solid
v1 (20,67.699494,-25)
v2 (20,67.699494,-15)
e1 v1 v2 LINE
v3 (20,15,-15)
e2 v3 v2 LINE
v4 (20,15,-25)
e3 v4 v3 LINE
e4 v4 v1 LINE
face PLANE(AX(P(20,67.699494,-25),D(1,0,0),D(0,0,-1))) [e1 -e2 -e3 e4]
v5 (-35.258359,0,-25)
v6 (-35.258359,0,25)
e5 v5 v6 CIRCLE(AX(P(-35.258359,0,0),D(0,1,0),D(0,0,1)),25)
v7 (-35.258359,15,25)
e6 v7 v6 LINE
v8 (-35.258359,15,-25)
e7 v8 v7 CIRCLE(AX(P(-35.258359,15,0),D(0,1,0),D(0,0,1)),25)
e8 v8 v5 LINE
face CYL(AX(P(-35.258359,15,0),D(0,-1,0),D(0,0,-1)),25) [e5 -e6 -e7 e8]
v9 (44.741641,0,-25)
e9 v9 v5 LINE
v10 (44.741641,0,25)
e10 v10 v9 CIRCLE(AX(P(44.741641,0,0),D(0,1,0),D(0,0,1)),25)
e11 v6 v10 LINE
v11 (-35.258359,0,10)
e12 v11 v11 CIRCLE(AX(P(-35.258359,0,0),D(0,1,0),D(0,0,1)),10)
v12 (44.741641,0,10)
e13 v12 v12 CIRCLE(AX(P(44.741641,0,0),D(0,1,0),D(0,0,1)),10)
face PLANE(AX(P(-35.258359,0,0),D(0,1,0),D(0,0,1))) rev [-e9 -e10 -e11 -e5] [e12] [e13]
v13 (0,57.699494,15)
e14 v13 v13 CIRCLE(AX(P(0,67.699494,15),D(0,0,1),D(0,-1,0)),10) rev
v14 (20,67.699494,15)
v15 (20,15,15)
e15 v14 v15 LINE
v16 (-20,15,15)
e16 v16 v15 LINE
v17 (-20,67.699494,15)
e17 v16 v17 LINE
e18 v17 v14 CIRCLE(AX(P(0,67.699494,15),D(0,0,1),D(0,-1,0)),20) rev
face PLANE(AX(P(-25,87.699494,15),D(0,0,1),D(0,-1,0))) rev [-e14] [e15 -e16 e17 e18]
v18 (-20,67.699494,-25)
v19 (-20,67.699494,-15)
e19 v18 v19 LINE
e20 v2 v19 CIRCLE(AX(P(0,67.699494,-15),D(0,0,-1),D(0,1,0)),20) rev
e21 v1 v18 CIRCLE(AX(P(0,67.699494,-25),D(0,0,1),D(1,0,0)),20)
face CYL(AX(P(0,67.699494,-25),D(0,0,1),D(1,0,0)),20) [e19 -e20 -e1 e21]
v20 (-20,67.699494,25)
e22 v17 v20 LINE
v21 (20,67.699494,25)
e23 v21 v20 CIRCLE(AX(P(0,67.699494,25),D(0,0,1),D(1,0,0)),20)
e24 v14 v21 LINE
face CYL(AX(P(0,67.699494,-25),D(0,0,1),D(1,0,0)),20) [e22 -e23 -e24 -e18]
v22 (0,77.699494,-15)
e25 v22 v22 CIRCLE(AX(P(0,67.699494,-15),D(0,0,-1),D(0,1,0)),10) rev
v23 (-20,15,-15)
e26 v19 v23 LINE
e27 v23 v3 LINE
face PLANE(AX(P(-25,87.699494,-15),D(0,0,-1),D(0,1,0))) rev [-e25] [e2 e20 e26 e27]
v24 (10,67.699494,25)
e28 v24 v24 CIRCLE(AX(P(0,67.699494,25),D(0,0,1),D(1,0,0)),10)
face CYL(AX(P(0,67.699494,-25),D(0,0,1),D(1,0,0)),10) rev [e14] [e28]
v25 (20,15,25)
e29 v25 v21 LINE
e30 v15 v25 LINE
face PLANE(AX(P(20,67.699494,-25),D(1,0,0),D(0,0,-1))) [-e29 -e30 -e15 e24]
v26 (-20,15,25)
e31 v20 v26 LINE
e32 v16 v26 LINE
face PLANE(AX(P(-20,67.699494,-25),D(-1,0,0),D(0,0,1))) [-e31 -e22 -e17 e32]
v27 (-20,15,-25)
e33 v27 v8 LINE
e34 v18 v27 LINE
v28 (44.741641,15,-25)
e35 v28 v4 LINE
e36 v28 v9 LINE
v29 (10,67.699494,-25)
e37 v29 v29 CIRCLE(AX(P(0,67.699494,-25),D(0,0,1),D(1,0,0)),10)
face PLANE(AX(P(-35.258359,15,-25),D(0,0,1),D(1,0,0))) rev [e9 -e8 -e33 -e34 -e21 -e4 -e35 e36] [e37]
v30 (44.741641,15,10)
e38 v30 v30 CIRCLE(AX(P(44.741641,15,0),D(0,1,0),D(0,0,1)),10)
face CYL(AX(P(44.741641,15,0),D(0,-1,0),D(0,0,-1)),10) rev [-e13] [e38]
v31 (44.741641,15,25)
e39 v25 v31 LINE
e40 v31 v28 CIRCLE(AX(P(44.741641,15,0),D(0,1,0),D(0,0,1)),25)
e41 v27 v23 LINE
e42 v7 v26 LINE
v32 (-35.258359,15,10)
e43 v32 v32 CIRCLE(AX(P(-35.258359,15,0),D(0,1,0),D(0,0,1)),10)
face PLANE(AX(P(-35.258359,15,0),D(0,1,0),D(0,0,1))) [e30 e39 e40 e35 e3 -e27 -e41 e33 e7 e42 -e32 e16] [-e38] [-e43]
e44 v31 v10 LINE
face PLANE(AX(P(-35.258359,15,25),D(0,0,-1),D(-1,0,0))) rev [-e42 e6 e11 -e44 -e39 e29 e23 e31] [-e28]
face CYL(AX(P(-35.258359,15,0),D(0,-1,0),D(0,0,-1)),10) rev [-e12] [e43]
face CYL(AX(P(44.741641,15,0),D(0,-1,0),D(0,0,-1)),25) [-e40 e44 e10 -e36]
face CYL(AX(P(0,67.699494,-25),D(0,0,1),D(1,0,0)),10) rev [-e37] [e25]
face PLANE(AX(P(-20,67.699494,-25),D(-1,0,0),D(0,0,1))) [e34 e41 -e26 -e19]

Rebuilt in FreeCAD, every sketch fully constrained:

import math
import FreeCAD as App
import Part
import Sketcher

V = App.Vector


def add_polygon(sketch, points):
    """Adds a closed chain of lines whose ends are joined by coincident constraints."""
    first, n = sketch.GeometryCount, len(points)
    for a, b in zip(points, points[1:] + points[:1]):
        sketch.addGeometry(Part.LineSegment(App.Vector(*a, 0), App.Vector(*b, 0)), False)
    for i in range(n):
        sketch.addConstraint(Sketcher.Constraint("Coincident", first + i, 2, first + (i + 1) % n, 1))

doc = App.newDocument("Part")
body = doc.addObject("PartDesign::Body", "Body")

sketch1 = body.newObject("Sketcher::SketchObject", "Sketch")
sketch1.AttachmentSupport = (doc.getObject("XZ_Plane"), [""])
sketch1.MapMode = "FlatFace"
sketch1.addGeometry([
    Part.LineSegment(V(45, -25, 0), V(-35, -25, 0)),
    Part.ArcOfCircle(Part.Circle(V(-35, 0, 0), V(0, 0, 1), 25), math.radians(90), math.radians(270)),
    Part.LineSegment(V(-35, 25, 0), V(45, 25, 0)),
    Part.ArcOfCircle(Part.Circle(V(45, 0, 0), V(0, 0, 1), 25), math.radians(-90), math.radians(90)),
    Part.Circle(V(45, 0, 0), V(0, 0, 1), 10),
    Part.Circle(V(-35, 0, 0), V(0, 0, 1), 10),
], False)
sketch1.addConstraint([
    Sketcher.Constraint("Tangent", 0, 2, 1, 2),
    Sketcher.Constraint("Tangent", 1, 1, 2, 1),
    Sketcher.Constraint("Tangent", 2, 2, 3, 2),
    Sketcher.Constraint("Tangent", 3, 1, 0, 1),
    Sketcher.Constraint("Horizontal", 0),
    Sketcher.Constraint("Horizontal", 2),
    Sketcher.Constraint("Coincident", 4, 3, 3, 3),
    Sketcher.Constraint("Coincident", 5, 3, 1, 3),
    Sketcher.Constraint("Equal", 4, 5),
    Sketcher.Constraint("PointOnObject", 1, 3, -1),
    Sketcher.Constraint("Diameter", 4, 20.0),
    Sketcher.Constraint("Radius", 1, 25.0),
    Sketcher.Constraint("DistanceX", 0, 2, 0, 1, 80.0),
    Sketcher.Constraint("DistanceX", 1, 3, -1, 1, 35.258359),
])
pad1 = body.newObject("PartDesign::Pad", "Pad")
pad1.Profile = sketch1
pad1.Length = 15
pad1.Reversed = True

sketch2 = body.newObject("Sketcher::SketchObject", "Sketch001")
sketch2.AttachmentSupport = (doc.getObject("XY_Plane"), [""])
sketch2.MapMode = "FlatFace"
sketch2.AttachmentOffset = App.Placement(V(0, 0, 25), App.Rotation())
sketch2.addGeometry([
    Part.LineSegment(V(-20, 68, 0), V(-20, 15, 0)),
    Part.LineSegment(V(-20, 15, 0), V(20, 15, 0)),
    Part.LineSegment(V(20, 15, 0), V(20, 68, 0)),
    Part.ArcOfCircle(Part.Circle(V(0, 68, 0), V(0, 0, 1), 20), math.radians(0), math.radians(180)),
    Part.Circle(V(0, 68, 0), V(0, 0, 1), 10),
], False)
sketch2.addConstraint([
    Sketcher.Constraint("Coincident", 0, 2, 1, 1),
    Sketcher.Constraint("Coincident", 1, 2, 2, 1),
    Sketcher.Constraint("Tangent", 2, 2, 3, 1),
    Sketcher.Constraint("Tangent", 3, 2, 0, 1),
    Sketcher.Constraint("Vertical", 0),
    Sketcher.Constraint("Horizontal", 1),
    Sketcher.Constraint("Vertical", 2),
    Sketcher.Constraint("Coincident", 4, 3, 3, 3),
    Sketcher.Constraint("PointOnObject", 3, 3, -2),
    Sketcher.Constraint("Diameter", 4, 20.0),
    Sketcher.Constraint("Radius", 3, 20.0),
    Sketcher.Constraint("DistanceY", -1, 1, 0, 2, 15.0),
    Sketcher.Constraint("DistanceY", 0, 2, 0, 1, 52.699494),
])
pad2 = body.newObject("PartDesign::Pad", "Pad001")
pad2.Profile = sketch2
pad2.Length = 50
pad2.Reversed = True

sketch3 = body.newObject("Sketcher::SketchObject", "Sketch002")
sketch3.AttachmentSupport = (doc.getObject("YZ_Plane"), [""])
sketch3.MapMode = "FlatFace"
add_polygon(sketch3, [(88, 15), (15, 15), (15, -15), (88, -15)])
sketch3.addConstraint([
    Sketcher.Constraint("Horizontal", 0),
    Sketcher.Constraint("Vertical", 1),
    Sketcher.Constraint("Horizontal", 2),
    Sketcher.Constraint("Vertical", 3),
    Sketcher.Constraint("DistanceY", 1, 2, 1, 1, 30.0),
    Sketcher.Constraint("DistanceX", -1, 1, 0, 2, 15.0),
    Sketcher.Constraint("DistanceY", -1, 1, 0, 2, 15.0),
    Sketcher.Constraint("DistanceX", 0, 2, 0, 1, 72.699494),
])
pocket1 = body.newObject("PartDesign::Pocket", "Pocket")
pocket1.Profile = sketch3
pocket1.Length = 50
pocket1.Midplane = True

doc.recompute()
